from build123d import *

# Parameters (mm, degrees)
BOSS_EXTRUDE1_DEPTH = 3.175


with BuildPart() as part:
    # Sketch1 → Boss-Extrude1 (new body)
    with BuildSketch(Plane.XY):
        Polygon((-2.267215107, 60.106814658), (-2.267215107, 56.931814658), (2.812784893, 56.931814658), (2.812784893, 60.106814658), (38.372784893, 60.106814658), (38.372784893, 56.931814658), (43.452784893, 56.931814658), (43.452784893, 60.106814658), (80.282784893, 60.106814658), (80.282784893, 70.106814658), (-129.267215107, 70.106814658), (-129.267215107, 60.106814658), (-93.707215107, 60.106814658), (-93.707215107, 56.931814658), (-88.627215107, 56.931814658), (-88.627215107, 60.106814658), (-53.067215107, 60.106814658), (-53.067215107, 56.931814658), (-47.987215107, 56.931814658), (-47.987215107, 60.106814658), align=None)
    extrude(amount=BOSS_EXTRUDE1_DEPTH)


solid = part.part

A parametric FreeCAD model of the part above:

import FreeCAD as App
import Part
import Sketcher

V = App.Vector
Q = App.Units.Quantity


def add_polygon(sketch, points):
    """Adds a closed chain of lines whose ends are joined by coincident constraints."""
    first, n = sketch.GeometryCount, len(points)
    for a, b in zip(points, points[1:] + points[:1]):
        sketch.addGeometry(Part.LineSegment(App.Vector(*a, 0), App.Vector(*b, 0)), False)
    for i in range(n):
        sketch.addConstraint(Sketcher.Constraint("Coincident", first + i, 2, first + (i + 1) % n, 1))

doc = App.newDocument("Part")
body = doc.addObject("PartDesign::Body", "Body")

# Sketch on XY plane
sketch1 = body.newObject("Sketcher::SketchObject", "Sketch")
sketch1.AttachmentSupport = (doc.getObject("XY_Plane"), [""])
sketch1.MapMode = "FlatFace"
add_polygon(sketch1, [(-2.267215, 60.106815), (-2.267215, 56.931815), (2.812785, 56.931815), (2.812785, 60.106815), (38.372785, 60.106815), (38.372785, 56.931815), (43.452785, 56.931815), (43.452785, 60.106815), (80.282785, 60.106815), (80.282785, 70.106815), (-129.267215, 70.106815), (-129.267215, 60.106815), (-93.707215, 60.106815), (-93.707215, 56.931815), (-88.627215, 56.931815), (-88.627215, 60.106815), (-53.067215, 60.106815), (-53.067215, 56.931815), (-47.987215, 56.931815), (-47.987215, 60.106815)])  # lines 0-19
sketch1.addConstraint(Sketcher.Constraint("Vertical", 0))
sketch1.addConstraint(Sketcher.Constraint("Horizontal", 1))
sketch1.addConstraint(Sketcher.Constraint("Vertical", 2))
sketch1.addConstraint(Sketcher.Constraint("Horizontal", 3))
sketch1.addConstraint(Sketcher.Constraint("Vertical", 4))
sketch1.addConstraint(Sketcher.Constraint("Horizontal", 5))
sketch1.addConstraint(Sketcher.Constraint("Vertical", 6))
sketch1.addConstraint(Sketcher.Constraint("Horizontal", 7))
sketch1.addConstraint(Sketcher.Constraint("Vertical", 8))
sketch1.addConstraint(Sketcher.Constraint("Horizontal", 9))
sketch1.addConstraint(Sketcher.Constraint("Vertical", 10))
sketch1.addConstraint(Sketcher.Constraint("Horizontal", 11))
sketch1.addConstraint(Sketcher.Constraint("Vertical", 12))
sketch1.addConstraint(Sketcher.Constraint("Horizontal", 13))
sketch1.addConstraint(Sketcher.Constraint("Vertical", 14))
sketch1.addConstraint(Sketcher.Constraint("Horizontal", 15))
sketch1.addConstraint(Sketcher.Constraint("Vertical", 16))
sketch1.addConstraint(Sketcher.Constraint("Horizontal", 17))
sketch1.addConstraint(Sketcher.Constraint("Vertical", 18))
sketch1.addConstraint(Sketcher.Constraint("Horizontal", 19))
sketch1.addConstraint(Sketcher.Constraint("Horizontal", 1, 2, 4, 2))
sketch1.addConstraint(Sketcher.Constraint("Horizontal", 3, 2, 6, 2))
sketch1.addConstraint(Sketcher.Constraint("Horizontal", 7, 2, 10, 2))
sketch1.addConstraint(Sketcher.Constraint("Horizontal", 5, 2, 12, 2))
sketch1.addConstraint(Sketcher.Constraint("Horizontal", 11, 2, 14, 2))
sketch1.addConstraint(Sketcher.Constraint("Horizontal", 13, 2, 16, 2))
sketch1.addConstraint(Sketcher.Constraint("Horizontal", 15, 2, 18, 2))
sketch1.addConstraint(Sketcher.Constraint("Equal", 1, 5))
sketch1.addConstraint(Sketcher.Constraint("Equal", 3, 11))
sketch1.addConstraint(Sketcher.Constraint("Equal", 5, 13))
sketch1.addConstraint(Sketcher.Constraint("Equal", 11, 15))
sketch1.addConstraint(Sketcher.Constraint("Equal", 13, 17))
sketch1.addConstraint(Sketcher.Constraint("DistanceX", 1, 1, 1, 2, Q("0.2 in")))
sketch1.addConstraint(Sketcher.Constraint("DistanceX", 3, 1, 3, 2, Q("1.4 in")))
sketch1.addConstraint(Sketcher.Constraint("DistanceX", 19, 1, 19, 2, Q("1.8 in")))
sketch1.addConstraint(Sketcher.Constraint("DistanceX", 7, 1, 7, 2, Q("1.45 in")))
sketch1.addConstraint(Sketcher.Constraint("DistanceY", 0, 2, 0, 1, Q("0.125 in")))
sketch1.addConstraint(Sketcher.Constraint("DistanceY", 8, 1, 8, 2, 10.0))
sketch1.addConstraint(Sketcher.Constraint("DistanceX", 0, 2, -1, 1, 2.267215))
sketch1.addConstraint(Sketcher.Constraint("DistanceY", -1, 1, 0, 2, 56.931815))
pad1 = body.newObject("PartDesign::Pad", "Pad")
pad1.Profile = sketch1
pad1.Length = Q("0.125 in")

doc.recompute()
